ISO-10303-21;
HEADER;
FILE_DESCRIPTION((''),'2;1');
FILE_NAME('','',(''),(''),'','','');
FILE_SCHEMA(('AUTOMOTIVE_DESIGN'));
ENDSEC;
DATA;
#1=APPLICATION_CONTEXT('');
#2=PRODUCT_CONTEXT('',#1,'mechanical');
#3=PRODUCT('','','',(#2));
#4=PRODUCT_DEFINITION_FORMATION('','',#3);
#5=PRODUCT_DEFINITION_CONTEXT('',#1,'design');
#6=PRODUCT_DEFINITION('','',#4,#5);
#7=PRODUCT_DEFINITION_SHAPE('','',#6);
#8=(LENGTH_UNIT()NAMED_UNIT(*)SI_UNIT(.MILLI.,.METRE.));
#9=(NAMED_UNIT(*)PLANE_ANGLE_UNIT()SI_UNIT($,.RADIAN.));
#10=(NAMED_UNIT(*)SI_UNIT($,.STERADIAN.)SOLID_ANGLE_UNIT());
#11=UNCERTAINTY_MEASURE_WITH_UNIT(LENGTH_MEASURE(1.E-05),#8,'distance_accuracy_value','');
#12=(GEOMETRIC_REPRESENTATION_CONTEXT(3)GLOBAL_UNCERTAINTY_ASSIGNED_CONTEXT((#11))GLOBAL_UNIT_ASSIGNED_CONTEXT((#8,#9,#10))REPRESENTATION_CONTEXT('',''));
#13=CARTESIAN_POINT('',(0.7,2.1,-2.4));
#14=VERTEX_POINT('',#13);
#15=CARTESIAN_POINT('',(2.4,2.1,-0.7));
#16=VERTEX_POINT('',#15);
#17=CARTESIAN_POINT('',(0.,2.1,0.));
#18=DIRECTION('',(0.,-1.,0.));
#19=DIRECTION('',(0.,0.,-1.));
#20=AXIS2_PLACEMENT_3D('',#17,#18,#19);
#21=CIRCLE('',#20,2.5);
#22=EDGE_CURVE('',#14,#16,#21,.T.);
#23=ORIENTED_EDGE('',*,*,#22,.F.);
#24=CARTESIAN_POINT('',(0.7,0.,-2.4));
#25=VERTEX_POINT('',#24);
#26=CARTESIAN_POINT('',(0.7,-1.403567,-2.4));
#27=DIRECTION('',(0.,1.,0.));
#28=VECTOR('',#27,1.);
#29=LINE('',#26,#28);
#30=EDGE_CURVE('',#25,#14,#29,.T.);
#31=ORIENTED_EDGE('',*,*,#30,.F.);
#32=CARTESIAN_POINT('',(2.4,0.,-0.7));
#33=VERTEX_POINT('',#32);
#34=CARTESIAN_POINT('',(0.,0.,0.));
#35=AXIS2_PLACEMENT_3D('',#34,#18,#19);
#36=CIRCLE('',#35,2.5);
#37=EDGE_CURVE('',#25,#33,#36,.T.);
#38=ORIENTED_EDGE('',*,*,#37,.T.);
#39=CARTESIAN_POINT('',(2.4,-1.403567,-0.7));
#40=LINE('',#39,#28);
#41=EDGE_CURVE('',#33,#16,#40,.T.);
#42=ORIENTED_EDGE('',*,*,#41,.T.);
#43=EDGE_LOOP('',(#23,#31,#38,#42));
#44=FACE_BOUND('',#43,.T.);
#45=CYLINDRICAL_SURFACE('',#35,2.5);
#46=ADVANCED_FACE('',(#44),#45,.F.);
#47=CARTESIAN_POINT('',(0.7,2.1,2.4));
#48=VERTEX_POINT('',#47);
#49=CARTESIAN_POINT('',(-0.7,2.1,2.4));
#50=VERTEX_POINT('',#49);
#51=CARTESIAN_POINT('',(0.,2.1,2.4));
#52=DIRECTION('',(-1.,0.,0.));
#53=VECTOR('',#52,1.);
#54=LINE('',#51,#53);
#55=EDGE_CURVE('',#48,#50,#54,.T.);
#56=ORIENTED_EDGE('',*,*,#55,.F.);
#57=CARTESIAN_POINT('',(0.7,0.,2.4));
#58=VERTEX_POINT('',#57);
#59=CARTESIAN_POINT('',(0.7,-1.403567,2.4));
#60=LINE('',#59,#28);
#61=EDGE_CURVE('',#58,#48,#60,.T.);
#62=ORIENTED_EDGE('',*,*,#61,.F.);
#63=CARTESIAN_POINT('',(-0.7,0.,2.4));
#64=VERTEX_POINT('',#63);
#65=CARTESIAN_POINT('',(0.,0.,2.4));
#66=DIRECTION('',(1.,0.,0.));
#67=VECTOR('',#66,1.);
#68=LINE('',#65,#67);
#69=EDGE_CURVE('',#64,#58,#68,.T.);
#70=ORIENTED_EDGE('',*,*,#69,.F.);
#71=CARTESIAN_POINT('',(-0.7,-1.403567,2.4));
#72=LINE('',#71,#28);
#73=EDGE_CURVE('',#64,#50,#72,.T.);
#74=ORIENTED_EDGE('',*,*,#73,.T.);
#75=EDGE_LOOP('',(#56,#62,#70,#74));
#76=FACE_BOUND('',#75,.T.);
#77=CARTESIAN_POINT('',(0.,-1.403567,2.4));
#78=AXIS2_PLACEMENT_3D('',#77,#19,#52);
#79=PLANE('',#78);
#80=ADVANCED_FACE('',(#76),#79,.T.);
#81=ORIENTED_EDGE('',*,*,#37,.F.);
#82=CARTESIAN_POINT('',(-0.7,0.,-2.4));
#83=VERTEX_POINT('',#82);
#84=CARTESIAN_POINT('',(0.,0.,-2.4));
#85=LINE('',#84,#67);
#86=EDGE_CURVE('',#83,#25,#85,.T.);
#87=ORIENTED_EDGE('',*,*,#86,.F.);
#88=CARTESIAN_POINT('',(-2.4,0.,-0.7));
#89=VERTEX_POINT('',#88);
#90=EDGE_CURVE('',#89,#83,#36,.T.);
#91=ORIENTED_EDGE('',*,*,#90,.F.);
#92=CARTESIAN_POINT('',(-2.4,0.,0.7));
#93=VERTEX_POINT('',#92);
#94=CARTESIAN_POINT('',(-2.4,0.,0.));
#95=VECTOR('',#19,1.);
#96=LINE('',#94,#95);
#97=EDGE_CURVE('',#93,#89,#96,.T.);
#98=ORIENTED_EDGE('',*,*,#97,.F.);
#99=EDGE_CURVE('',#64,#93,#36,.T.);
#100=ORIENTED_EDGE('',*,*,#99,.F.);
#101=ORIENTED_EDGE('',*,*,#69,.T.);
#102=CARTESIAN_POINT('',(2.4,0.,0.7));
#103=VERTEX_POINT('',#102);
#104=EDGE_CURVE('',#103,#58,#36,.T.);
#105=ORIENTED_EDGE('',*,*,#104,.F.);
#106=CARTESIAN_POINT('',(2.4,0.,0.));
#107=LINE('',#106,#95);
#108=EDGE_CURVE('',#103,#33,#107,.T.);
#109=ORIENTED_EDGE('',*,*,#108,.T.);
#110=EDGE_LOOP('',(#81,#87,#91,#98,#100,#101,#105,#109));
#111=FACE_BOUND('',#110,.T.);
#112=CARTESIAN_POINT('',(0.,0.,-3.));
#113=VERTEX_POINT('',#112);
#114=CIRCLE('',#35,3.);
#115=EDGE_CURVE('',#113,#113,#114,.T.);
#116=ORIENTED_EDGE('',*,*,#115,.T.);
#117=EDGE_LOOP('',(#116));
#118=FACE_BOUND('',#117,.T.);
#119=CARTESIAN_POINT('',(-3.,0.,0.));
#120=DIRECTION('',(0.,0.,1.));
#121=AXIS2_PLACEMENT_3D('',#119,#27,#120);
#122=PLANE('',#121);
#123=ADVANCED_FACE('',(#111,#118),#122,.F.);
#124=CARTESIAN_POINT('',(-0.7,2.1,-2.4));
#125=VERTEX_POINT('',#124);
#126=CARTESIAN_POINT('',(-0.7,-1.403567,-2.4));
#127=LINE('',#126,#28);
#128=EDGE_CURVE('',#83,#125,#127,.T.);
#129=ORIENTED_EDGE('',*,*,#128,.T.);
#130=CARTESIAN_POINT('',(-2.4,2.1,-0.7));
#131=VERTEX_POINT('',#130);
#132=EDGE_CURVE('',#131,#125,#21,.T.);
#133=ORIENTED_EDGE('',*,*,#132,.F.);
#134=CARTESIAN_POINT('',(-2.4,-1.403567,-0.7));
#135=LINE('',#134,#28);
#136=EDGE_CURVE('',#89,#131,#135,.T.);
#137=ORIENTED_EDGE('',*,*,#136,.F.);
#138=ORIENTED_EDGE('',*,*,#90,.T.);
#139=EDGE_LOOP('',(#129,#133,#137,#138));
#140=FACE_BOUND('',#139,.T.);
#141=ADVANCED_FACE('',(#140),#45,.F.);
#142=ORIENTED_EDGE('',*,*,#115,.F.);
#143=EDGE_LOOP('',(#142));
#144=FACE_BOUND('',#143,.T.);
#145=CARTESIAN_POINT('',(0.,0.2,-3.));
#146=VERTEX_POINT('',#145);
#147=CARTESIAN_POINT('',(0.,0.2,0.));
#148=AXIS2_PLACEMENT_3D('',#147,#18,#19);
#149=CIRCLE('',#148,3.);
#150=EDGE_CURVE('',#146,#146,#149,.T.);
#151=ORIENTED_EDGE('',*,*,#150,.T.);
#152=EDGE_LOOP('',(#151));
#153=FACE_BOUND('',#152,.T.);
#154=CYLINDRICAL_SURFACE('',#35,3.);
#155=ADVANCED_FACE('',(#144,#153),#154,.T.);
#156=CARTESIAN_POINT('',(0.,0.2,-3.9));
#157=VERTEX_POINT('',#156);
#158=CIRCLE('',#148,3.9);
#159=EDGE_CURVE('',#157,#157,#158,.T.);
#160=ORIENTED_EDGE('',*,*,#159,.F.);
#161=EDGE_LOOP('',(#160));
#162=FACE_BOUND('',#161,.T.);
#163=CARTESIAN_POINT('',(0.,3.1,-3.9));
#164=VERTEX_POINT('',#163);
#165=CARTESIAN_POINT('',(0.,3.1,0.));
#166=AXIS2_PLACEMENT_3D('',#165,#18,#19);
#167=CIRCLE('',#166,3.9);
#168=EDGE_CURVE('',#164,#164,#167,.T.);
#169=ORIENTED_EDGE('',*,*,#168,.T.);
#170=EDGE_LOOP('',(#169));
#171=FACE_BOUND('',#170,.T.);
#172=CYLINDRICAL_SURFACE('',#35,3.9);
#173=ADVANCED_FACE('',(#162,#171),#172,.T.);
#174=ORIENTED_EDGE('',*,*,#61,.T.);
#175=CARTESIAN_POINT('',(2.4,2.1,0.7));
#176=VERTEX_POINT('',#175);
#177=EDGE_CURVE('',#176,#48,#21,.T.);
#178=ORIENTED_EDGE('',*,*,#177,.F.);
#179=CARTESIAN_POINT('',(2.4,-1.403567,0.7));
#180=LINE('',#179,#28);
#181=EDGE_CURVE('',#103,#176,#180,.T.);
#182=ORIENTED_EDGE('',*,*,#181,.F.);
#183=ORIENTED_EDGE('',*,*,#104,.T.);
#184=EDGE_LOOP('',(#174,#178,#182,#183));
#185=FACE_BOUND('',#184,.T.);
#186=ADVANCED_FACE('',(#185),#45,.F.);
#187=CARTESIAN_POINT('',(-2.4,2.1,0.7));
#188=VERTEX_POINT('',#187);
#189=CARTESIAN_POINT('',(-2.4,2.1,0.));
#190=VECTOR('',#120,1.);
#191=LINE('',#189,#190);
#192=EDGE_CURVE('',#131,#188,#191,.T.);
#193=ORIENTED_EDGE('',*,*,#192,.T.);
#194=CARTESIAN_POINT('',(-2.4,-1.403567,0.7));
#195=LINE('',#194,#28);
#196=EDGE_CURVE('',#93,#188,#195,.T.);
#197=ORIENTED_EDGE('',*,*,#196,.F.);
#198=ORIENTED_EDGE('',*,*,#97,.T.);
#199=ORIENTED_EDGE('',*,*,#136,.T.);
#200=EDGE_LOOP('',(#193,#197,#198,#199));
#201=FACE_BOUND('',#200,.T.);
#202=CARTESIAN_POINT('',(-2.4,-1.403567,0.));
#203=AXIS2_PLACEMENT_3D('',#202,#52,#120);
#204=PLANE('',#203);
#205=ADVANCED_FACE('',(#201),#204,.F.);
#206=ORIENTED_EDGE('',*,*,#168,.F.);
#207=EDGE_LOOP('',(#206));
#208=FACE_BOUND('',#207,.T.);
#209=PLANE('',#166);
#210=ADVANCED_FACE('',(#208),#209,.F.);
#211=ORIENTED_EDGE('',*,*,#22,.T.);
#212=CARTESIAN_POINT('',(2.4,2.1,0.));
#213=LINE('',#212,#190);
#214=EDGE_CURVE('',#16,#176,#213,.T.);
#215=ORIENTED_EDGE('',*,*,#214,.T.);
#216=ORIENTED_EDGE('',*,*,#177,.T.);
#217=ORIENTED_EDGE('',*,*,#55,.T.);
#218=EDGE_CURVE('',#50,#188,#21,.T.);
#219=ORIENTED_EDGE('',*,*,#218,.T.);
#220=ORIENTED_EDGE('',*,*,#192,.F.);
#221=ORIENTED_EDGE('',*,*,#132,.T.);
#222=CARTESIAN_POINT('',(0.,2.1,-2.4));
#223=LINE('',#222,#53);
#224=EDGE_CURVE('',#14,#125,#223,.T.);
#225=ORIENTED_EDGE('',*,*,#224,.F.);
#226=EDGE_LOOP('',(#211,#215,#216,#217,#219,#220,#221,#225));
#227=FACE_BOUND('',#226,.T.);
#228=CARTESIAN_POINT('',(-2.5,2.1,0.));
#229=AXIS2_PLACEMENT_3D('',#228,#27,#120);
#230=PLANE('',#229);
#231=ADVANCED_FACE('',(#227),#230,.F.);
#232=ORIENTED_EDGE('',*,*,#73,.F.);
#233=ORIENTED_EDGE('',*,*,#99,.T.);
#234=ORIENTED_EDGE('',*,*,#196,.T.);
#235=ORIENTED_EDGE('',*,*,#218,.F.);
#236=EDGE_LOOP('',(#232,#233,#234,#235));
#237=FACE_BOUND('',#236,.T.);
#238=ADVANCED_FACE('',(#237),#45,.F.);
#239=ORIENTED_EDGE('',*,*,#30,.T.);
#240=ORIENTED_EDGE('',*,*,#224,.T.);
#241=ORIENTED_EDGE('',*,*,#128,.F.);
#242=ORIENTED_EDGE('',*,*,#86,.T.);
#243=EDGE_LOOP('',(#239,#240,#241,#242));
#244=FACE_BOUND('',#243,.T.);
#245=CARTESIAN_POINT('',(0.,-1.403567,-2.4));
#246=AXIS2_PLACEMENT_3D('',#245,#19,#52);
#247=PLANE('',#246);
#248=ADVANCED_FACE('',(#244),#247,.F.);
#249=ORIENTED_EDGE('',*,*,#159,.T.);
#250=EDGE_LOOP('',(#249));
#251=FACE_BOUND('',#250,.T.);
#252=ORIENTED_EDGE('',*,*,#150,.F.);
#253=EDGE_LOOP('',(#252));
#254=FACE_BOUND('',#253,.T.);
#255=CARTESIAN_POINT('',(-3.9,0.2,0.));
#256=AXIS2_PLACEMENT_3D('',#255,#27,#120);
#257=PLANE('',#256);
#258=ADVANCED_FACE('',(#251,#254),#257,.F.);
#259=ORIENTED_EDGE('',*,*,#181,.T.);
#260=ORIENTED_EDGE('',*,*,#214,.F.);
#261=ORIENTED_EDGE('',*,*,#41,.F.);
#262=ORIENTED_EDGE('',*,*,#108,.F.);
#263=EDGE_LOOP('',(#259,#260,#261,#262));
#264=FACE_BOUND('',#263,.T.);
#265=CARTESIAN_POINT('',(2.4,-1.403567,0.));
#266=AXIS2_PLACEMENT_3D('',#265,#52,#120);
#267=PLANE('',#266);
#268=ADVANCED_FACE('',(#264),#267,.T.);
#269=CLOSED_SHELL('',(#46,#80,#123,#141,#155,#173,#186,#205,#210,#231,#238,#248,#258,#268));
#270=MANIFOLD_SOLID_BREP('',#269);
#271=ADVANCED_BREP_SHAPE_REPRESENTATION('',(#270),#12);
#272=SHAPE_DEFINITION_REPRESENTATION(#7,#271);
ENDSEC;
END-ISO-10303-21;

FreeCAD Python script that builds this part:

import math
import FreeCAD as App
import Part
import Sketcher
from FreeCAD import Vector
Q = App.Units.Quantity

doc = App.newDocument("Part")
body = doc.addObject("PartDesign::Body", "Body")

# Sketch on XY plane
sketch1 = doc.addObject("Sketcher::SketchObject", "Sketch")
body.addObject(sketch1)
sketch1.AttachmentSupport = (doc.XY_Plane, [""])
sketch1.MapMode = "FlatFace"
sketch1.addGeometry(Part.LineSegment(Vector(0, 3.1, 0), Vector(-3.9, 3.1, 0)), False)
sketch1.addGeometry(Part.LineSegment(Vector(-3.9, 3.1, 0), Vector(-3.9, 0.2, 0)), False)
sketch1.addGeometry(Part.LineSegment(Vector(-3.9, 0.2, 0), Vector(-3, 0.2, 0)), False)
sketch1.addGeometry(Part.LineSegment(Vector(-3, 0.2, 0), Vector(-3, 0, 0)), False)
sketch1.addGeometry(Part.LineSegment(Vector(-3, 0, 0), Vector(-2.5, 0, 0)), False)
sketch1.addGeometry(Part.LineSegment(Vector(-2.5, 0, 0), Vector(-2.5, 2.1, 0)), False)
sketch1.addGeometry(Part.LineSegment(Vector(-2.5, 2.1, 0), Vector(0, 2.1, 0)), False)
sketch1.addGeometry(Part.LineSegment(Vector(0, 2.1, 0), Vector(0, 3.1, 0)), False)
sketch1.addConstraint(Sketcher.Constraint("Coincident", 0, 2, 1, 1))
sketch1.addConstraint(Sketcher.Constraint("Coincident", 1, 2, 2, 1))
sketch1.addConstraint(Sketcher.Constraint("Coincident", 2, 2, 3, 1))
sketch1.addConstraint(Sketcher.Constraint("Coincident", 3, 2, 4, 1))
sketch1.addConstraint(Sketcher.Constraint("Coincident", 4, 2, 5, 1))
sketch1.addConstraint(Sketcher.Constraint("Coincident", 5, 2, 6, 1))
sketch1.addConstraint(Sketcher.Constraint("Coincident", 6, 2, 7, 1))
sketch1.addConstraint(Sketcher.Constraint("Coincident", 7, 2, 0, 1))
sketch1.addConstraint(Sketcher.Constraint("Horizontal", 0))
sketch1.addConstraint(Sketcher.Constraint("Vertical", 1))
sketch1.addConstraint(Sketcher.Constraint("Horizontal", 2))
sketch1.addConstraint(Sketcher.Constraint("Vertical", 3))
sketch1.addConstraint(Sketcher.Constraint("Horizontal", 4))
sketch1.addConstraint(Sketcher.Constraint("Vertical", 5))
sketch1.addConstraint(Sketcher.Constraint("Horizontal", 6))
sketch1.addConstraint(Sketcher.Constraint("Vertical", 7))
sketch1.addConstraint(Sketcher.Constraint("PointOnObject", 3, 2, -1))
sketch1.addConstraint(Sketcher.Constraint("PointOnObject", 6, 2, -2))
sketch1.addConstraint(Sketcher.Constraint("DistanceY", 7, 1, 7, 2, Q("1 mm")))
sketch1.addConstraint(Sketcher.Constraint("DistanceX", 0, 2, 0, 1, Q("3.9 mm")))
sketch1.addConstraint(Sketcher.Constraint("DistanceX", 2, 1, 2, 2, Q("0.9 mm")))
sketch1.addConstraint(Sketcher.Constraint("DistanceX", 4, 1, 4, 2, Q("0.5 mm")))
sketch1.addConstraint(Sketcher.Constraint("DistanceY", 1, 2, 1, 1, Q("2.9 mm")))
sketch1.addConstraint(Sketcher.Constraint("DistanceY", 3, 2, 3, 1, Q("0.2 mm")))
revolution = doc.addObject("PartDesign::Revolution", "Revolution")
body.addObject(revolution)
revolution.Profile = sketch1
revolution.ReferenceAxis = (sketch1, ["V_Axis"])
revolution.Angle = 360

# Sketch on XZ plane
sketch2 = doc.addObject("Sketcher::SketchObject", "Sketch001")
body.addObject(sketch2)
sketch2.AttachmentSupport = (doc.XZ_Plane, [""])
sketch2.MapMode = "FlatFace"
sketch2.AttachmentOffset = App.Placement(Vector(0, 0, -2.1), App.Rotation())
sketch2.addGeometry(Part.LineSegment(Vector(-0.7, 2.4, 0), Vector(0.7, 2.4, 0)), False)
sketch2.addGeometry(Part.ArcOfCircle(Part.Circle(Vector(0, 0, 0), Vector(0, 0, 1), 2.5), math.radians(74), math.radians(106)), False)
sketch2.addGeometry(Part.ArcOfCircle(Part.Circle(Vector(0, 0, 0), Vector(0, 0, 1), 2.5), math.radians(164), math.radians(196)), False)
sketch2.addGeometry(Part.LineSegment(Vector(-2.4, -0.7, 0), Vector(-2.4, 0.7, 0)), False)
sketch2.addGeometry(Part.LineSegment(Vector(2.4, 0.7, 0), Vector(2.4, -0.7, 0)), False)
sketch2.addGeometry(Part.ArcOfCircle(Part.Circle(Vector(0, 0, 0), Vector(0, 0, 1), 2.5), math.radians(-16.26), math.radians(0)), False)
sketch2.addGeometry(Part.ArcOfCircle(Part.Circle(Vector(0, 0, 0), Vector(0, 0, 1), 2.5), math.radians(0), math.radians(16.26)), False)
sketch2.addGeometry(Part.ArcOfCircle(Part.Circle(Vector(0, 0, 0), Vector(0, 0, 1), 2.5), math.radians(-106), math.radians(-74)), False)
sketch2.addGeometry(Part.LineSegment(Vector(0.7, -2.4, 0), Vector(-0.7, -2.4, 0)), False)
sketch2.addConstraint(Sketcher.Constraint("Coincident", 0, 1, 1, 2))
sketch2.addConstraint(Sketcher.Constraint("Coincident", 1, 1, 0, 2))
sketch2.addConstraint(Sketcher.Constraint("Coincident", 2, 1, 3, 2))
sketch2.addConstraint(Sketcher.Constraint("Coincident", 3, 1, 2, 2))
sketch2.addConstraint(Sketcher.Constraint("Coincident", 4, 2, 5, 1))
sketch2.addConstraint(Sketcher.Constraint("Tangent", 5, 2, 6, 1))
sketch2.addConstraint(Sketcher.Constraint("Coincident", 6, 2, 4, 1))
sketch2.addConstraint(Sketcher.Constraint("Coincident", 7, 1, 8, 2))
sketch2.addConstraint(Sketcher.Constraint("Coincident", 8, 1, 7, 2))
sketch2.addConstraint(Sketcher.Constraint("Horizontal", 0))
sketch2.addConstraint(Sketcher.Constraint("Vertical", 3))
sketch2.addConstraint(Sketcher.Constraint("Vertical", 4))
sketch2.addConstraint(Sketcher.Constraint("Horizontal", 8))
sketch2.addConstraint(Sketcher.Constraint("Coincident", 1, 3, -1, 1))
sketch2.addConstraint(Sketcher.Constraint("Coincident", 2, 3, -1, 1))
sketch2.addConstraint(Sketcher.Constraint("Coincident", 5, 3, -1, 1))
sketch2.addConstraint(Sketcher.Constraint("Coincident", 7, 3, -1, 1))
sketch2.addConstraint(Sketcher.Constraint("Equal", 1, 2))
sketch2.addConstraint(Sketcher.Constraint("Equal", 2, 5))
sketch2.addConstraint(Sketcher.Constraint("Equal", 5, 6))
sketch2.addConstraint(Sketcher.Constraint("Equal", 6, 7))
sketch2.addConstraint(Sketcher.Constraint("PointOnObject", 5, 2, -1))
sketch2.addConstraint(Sketcher.Constraint("Horizontal", 3, 1, 4, 2))
sketch2.addConstraint(Sketcher.Constraint("Vertical", 0, 1, 7, 1))
sketch2.addConstraint(Sketcher.Constraint("Equal", 8, 3))
sketch2.addConstraint(Sketcher.Constraint("Radius", 1, Q("2.5 mm")))
sketch2.addConstraint(Sketcher.Constraint("DistanceX", 0, 1, 0, 2, Q("1.4 mm")))
pad1 = doc.addObject("PartDesign::Pad", "Pad")
body.addObject(pad1)
pad1.Profile = sketch2
pad1.Length = 2.1

doc.recompute()
